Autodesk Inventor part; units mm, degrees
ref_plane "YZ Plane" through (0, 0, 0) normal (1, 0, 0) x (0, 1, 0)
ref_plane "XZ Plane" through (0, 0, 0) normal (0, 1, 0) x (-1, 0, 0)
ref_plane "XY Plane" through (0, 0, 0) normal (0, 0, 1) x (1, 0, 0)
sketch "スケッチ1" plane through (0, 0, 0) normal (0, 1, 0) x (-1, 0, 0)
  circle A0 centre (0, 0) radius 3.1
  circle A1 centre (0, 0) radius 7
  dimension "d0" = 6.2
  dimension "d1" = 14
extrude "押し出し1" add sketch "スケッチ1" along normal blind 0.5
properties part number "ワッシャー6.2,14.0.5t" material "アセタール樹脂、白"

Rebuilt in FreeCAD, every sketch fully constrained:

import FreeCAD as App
import Part
import Sketcher

V = App.Vector
Q = App.Units.Quantity

doc = App.newDocument("Part")
params = doc.addObject("Spreadsheet::Sheet", "Params")
for row, (alias, value) in enumerate([
    ("sketch1_diameter", "14 mm"),
    ("sketch1_diameter2", "6.2 mm"),
    ("pad1_length", "0.5 mm"),
], start=1):
    params.set(f"A{row}", alias)
    params.set(f"B{row}", "=" + value)
    params.setAlias(f"B{row}", alias)

body = doc.addObject("PartDesign::Body", "Body")

sketch1 = doc.addObject("Sketcher::SketchObject", "Sketch")
body.addObject(sketch1)
sketch1.AttachmentSupport = (doc.XZ_Plane, [""])
sketch1.MapMode = "FlatFace"
sketch1.addGeometry([
    Part.Circle(V(0, 0, 0), V(0, 0, 1), 7),
    Part.Circle(V(0, 0, 0), V(0, 0, 1), 3.1),
], False)
sketch1.addConstraint([
    Sketcher.Constraint("Coincident", 0, 3, -1, 1),
    Sketcher.Constraint("Coincident", 1, 3, -1, 1),
    Sketcher.Constraint("Diameter", 0, Q("14 mm")),
    Sketcher.Constraint("Diameter", 1, Q("6.2 mm")),
])
sketch1.setExpression("Constraints[2]", "Params.sketch1_diameter")
sketch1.setExpression("Constraints[3]", "Params.sketch1_diameter2")
pad1 = doc.addObject("PartDesign::Pad", "Pad")
body.addObject(pad1)
pad1.Profile = sketch1
pad1.setExpression("Length", "Params.pad1_length")
pad1.Reversed = True

doc.recompute()
